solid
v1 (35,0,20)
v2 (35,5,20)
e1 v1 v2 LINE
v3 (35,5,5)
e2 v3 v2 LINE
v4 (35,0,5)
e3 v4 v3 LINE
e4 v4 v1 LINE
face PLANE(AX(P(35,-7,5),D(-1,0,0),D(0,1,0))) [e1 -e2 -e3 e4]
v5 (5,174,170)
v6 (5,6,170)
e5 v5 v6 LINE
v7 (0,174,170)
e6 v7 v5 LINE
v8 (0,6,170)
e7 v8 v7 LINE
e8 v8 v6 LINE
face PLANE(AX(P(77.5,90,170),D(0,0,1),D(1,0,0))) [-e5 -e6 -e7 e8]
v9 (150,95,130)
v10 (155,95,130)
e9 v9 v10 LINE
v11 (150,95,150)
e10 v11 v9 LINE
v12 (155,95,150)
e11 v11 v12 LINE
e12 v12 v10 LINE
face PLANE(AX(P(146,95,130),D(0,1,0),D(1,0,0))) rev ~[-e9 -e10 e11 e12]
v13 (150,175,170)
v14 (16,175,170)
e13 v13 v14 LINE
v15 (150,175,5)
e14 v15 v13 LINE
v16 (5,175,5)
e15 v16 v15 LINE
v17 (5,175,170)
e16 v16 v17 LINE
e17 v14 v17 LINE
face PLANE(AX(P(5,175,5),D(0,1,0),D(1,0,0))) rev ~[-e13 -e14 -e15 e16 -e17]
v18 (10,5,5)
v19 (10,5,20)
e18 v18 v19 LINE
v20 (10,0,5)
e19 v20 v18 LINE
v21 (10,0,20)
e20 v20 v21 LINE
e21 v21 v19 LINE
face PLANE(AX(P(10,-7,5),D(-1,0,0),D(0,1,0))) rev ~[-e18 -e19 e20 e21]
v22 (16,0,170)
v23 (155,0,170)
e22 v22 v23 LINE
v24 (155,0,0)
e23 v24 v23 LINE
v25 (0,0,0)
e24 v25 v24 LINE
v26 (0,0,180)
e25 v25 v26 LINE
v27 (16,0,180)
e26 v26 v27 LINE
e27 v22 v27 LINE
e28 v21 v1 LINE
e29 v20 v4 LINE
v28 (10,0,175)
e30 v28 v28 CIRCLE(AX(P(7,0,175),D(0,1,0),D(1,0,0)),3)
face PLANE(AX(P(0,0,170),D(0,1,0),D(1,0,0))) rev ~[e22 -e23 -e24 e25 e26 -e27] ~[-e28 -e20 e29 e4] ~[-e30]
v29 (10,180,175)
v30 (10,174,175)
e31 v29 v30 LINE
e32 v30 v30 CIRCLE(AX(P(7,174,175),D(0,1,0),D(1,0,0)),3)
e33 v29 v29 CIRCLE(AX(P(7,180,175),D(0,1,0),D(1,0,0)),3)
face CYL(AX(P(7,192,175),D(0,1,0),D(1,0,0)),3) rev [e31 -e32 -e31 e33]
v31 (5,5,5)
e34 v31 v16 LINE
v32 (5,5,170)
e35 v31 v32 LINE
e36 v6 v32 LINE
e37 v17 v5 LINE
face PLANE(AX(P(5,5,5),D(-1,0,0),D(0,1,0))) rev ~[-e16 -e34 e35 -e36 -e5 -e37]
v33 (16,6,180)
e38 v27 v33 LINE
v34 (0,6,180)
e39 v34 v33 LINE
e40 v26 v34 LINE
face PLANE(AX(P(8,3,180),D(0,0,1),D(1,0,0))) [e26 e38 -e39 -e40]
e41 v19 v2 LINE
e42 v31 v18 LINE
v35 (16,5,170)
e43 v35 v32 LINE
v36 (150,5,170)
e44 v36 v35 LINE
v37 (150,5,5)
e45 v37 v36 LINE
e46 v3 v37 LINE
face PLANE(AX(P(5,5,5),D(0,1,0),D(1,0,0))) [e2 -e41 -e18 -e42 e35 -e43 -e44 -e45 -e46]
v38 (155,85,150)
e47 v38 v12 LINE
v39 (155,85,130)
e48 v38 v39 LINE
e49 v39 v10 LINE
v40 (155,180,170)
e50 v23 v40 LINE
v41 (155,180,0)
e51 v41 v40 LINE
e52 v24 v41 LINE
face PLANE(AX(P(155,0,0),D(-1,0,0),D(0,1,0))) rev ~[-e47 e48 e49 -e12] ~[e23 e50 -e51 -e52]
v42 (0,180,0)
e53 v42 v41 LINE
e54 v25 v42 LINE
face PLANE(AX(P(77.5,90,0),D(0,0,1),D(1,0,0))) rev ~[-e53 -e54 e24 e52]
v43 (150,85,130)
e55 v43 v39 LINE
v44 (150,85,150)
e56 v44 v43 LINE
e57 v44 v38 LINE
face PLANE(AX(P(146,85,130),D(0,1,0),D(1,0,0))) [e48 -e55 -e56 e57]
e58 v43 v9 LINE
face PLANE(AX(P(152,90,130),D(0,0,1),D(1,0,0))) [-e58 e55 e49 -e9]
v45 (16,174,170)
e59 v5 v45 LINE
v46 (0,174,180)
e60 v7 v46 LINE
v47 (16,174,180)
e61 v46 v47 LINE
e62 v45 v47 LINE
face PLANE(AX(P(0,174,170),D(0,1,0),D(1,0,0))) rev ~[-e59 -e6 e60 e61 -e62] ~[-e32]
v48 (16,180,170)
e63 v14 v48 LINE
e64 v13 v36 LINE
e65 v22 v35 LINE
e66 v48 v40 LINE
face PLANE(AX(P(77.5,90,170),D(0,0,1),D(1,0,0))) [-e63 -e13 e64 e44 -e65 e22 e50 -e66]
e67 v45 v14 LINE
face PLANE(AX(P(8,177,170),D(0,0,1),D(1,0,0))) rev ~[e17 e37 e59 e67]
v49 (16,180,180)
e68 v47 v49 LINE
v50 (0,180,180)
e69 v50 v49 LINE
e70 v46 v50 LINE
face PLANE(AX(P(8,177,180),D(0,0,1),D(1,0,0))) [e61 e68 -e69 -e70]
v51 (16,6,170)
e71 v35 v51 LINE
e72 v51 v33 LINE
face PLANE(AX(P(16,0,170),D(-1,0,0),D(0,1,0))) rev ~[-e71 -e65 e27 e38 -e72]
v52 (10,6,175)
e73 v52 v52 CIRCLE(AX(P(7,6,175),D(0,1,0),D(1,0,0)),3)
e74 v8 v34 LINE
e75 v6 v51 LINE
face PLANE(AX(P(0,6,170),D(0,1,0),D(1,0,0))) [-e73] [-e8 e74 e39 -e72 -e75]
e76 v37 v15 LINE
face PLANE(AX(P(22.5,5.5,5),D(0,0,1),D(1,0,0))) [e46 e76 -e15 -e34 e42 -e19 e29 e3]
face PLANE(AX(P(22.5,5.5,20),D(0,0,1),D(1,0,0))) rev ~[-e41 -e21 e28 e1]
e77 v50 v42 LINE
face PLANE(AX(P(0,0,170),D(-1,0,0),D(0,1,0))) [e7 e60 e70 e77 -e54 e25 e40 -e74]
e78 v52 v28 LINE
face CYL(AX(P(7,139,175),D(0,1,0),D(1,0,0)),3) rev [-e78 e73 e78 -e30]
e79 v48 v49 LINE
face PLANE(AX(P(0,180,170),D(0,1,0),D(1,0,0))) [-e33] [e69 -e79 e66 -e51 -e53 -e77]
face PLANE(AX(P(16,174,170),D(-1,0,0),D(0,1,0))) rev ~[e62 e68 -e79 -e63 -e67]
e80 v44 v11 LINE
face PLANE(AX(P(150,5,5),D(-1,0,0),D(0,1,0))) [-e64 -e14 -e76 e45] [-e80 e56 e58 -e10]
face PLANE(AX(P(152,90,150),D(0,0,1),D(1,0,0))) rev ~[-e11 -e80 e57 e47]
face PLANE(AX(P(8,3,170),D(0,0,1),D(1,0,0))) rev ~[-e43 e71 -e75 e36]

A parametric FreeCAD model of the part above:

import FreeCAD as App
import Part
import Sketcher
from FreeCAD import Vector
Q = App.Units.Quantity

doc = App.newDocument("Part")
body = doc.addObject("PartDesign::Body", "Body")

# Sketch on XZ plane
sketch1 = body.newObject("Sketcher::SketchObject", "Sketch")
sketch1.AttachmentSupport = (doc.getObject("XZ_Plane"), [""])
sketch1.MapMode = "FlatFace"
sketch1.AttachmentOffset = App.Placement(Vector(0, 0, -139), App.Rotation())
sketch1.addGeometry(Part.Circle(Vector(7, 175, 0), Vector(0, 0, 1), 3), False)
sketch1.addConstraint([
    Sketcher.Constraint("Diameter", 0, Q("6 mm")),
    Sketcher.Constraint("DistanceX", -1, 1, 0, 3, Q("7 mm")),
    Sketcher.Constraint("DistanceY", -1, 1, 0, 3, Q("175 mm")),
])
pad1 = body.newObject("PartDesign::Pad", "Pad")
pad1.Profile = sketch1
pad1.Length = 148
body2 = doc.addObject("PartDesign::Body", "Body001")

# Sketch on XY plane
sketch2 = body2.newObject("Sketcher::SketchObject", "Sketch001")
sketch2.AttachmentSupport = (doc.getObject("XY_Plane001"), [""])
sketch2.MapMode = "FlatFace"
sketch2.AttachmentOffset = App.Placement(Vector(0, 0, 170), App.Rotation())
sketch2.addGeometry([
    Part.LineSegment(Vector(0, 6, 0), Vector(0, 0, 0)),
    Part.LineSegment(Vector(0, 0, 0), Vector(16, 0, 0)),
    Part.LineSegment(Vector(16, 0, 0), Vector(16, 6, 0)),
    Part.LineSegment(Vector(16, 6, 0), Vector(0, 6, 0)),
], False)
sketch2.addConstraint([
    Sketcher.Constraint("Coincident", 0, 2, 1, 1),
    Sketcher.Constraint("Coincident", 1, 2, 2, 1),
    Sketcher.Constraint("Coincident", 2, 2, 3, 1),
    Sketcher.Constraint("Coincident", 3, 2, 0, 1),
    Sketcher.Constraint("Vertical", 0),
    Sketcher.Constraint("Horizontal", 1),
    Sketcher.Constraint("Vertical", 2),
    Sketcher.Constraint("Horizontal", 3),
    Sketcher.Constraint("Coincident", 0, 2, -1, 1),
    Sketcher.Constraint("DistanceX", 1, 1, 1, 2, Q("16 mm")),
    Sketcher.Constraint("DistanceY", 0, 2, 0, 1, Q("6 mm")),
])
pad2 = body2.newObject("PartDesign::Pad", "Pad001")
pad2.Profile = sketch2
pad2.Length = 10
doc.recompute()

boolean = body2.newObject("PartDesign::Boolean", "Boolean")
boolean.Type = "Cut"
boolean.addObjects([body])
body3 = doc.addObject("PartDesign::Body", "Body002")

# Sketch on XZ plane
sketch3 = body3.newObject("Sketcher::SketchObject", "Sketch002")
sketch3.AttachmentSupport = (doc.getObject("XZ_Plane002"), [""])
sketch3.MapMode = "FlatFace"
sketch3.AttachmentOffset = App.Placement(Vector(0, 0, -192), App.Rotation())
sketch3.addGeometry(Part.Circle(Vector(7, 175, 0), Vector(0, 0, 1), 3), False)
sketch3.addConstraint([
    Sketcher.Constraint("Diameter", 0, Q("6 mm")),
    Sketcher.Constraint("DistanceX", -1, 1, 0, 3, Q("7 mm")),
    Sketcher.Constraint("DistanceY", -1, 1, 0, 3, Q("175 mm")),
])
pad3 = body3.newObject("PartDesign::Pad", "Pad002")
pad3.Profile = sketch3
pad3.Length = 148
body4 = doc.addObject("PartDesign::Body", "Body003")

# Sketch on XY plane
sketch4 = body4.newObject("Sketcher::SketchObject", "Sketch003")
sketch4.AttachmentSupport = (doc.getObject("XY_Plane003"), [""])
sketch4.MapMode = "FlatFace"
sketch4.AttachmentOffset = App.Placement(Vector(0, 0, 170), App.Rotation())
sketch4.addGeometry([
    Part.LineSegment(Vector(0, 180, 0), Vector(0, 174, 0)),
    Part.LineSegment(Vector(0, 174, 0), Vector(16, 174, 0)),
    Part.LineSegment(Vector(16, 174, 0), Vector(16, 180, 0)),
    Part.LineSegment(Vector(16, 180, 0), Vector(0, 180, 0)),
], False)
sketch4.addConstraint([
    Sketcher.Constraint("Coincident", 0, 2, 1, 1),
    Sketcher.Constraint("Coincident", 1, 2, 2, 1),
    Sketcher.Constraint("Coincident", 2, 2, 3, 1),
    Sketcher.Constraint("Coincident", 3, 2, 0, 1),
    Sketcher.Constraint("Vertical", 0),
    Sketcher.Constraint("Horizontal", 1),
    Sketcher.Constraint("Vertical", 2),
    Sketcher.Constraint("Horizontal", 3),
    Sketcher.Constraint("PointOnObject", 0, 2, -2),
    Sketcher.Constraint("DistanceX", 1, 1, 1, 2, Q("16 mm")),
    Sketcher.Constraint("DistanceY", 0, 2, 0, 1, Q("6 mm")),
    Sketcher.Constraint("DistanceY", -1, 1, 0, 2, Q("174 mm")),
])
pad4 = body4.newObject("PartDesign::Pad", "Pad003")
pad4.Profile = sketch4
pad4.Length = 10
doc.recompute()

boolean2 = body4.newObject("PartDesign::Boolean", "Boolean001")
boolean2.Type = "Cut"
boolean2.addObjects([body3])
body5 = doc.addObject("PartDesign::Body", "Body004")

# Sketch on XY plane
sketch5 = body5.newObject("Sketcher::SketchObject", "Sketch004")
sketch5.AttachmentSupport = (doc.getObject("XY_Plane004"), [""])
sketch5.MapMode = "FlatFace"
sketch5.AttachmentOffset = App.Placement(Vector(0, 0, 130), App.Rotation())
sketch5.addGeometry([
    Part.LineSegment(Vector(146, 95, 0), Vector(146, 85, 0)),
    Part.LineSegment(Vector(146, 85, 0), Vector(158, 85, 0)),
    Part.LineSegment(Vector(158, 85, 0), Vector(158, 95, 0)),
    Part.LineSegment(Vector(158, 95, 0), Vector(146, 95, 0)),
], False)
sketch5.addConstraint([
    Sketcher.Constraint("Coincident", 0, 2, 1, 1),
    Sketcher.Constraint("Coincident", 1, 2, 2, 1),
    Sketcher.Constraint("Coincident", 2, 2, 3, 1),
    Sketcher.Constraint("Coincident", 3, 2, 0, 1),
    Sketcher.Constraint("Vertical", 0),
    Sketcher.Constraint("Horizontal", 1),
    Sketcher.Constraint("Vertical", 2),
    Sketcher.Constraint("Horizontal", 3),
    Sketcher.Constraint("DistanceX", 1, 1, 1, 2, Q("12 mm")),
    Sketcher.Constraint("DistanceY", 0, 2, 0, 1, Q("10 mm")),
    Sketcher.Constraint("DistanceX", -1, 1, 0, 2, Q("146 mm")),
    Sketcher.Constraint("DistanceY", -1, 1, 0, 2, Q("85 mm")),
])
pad5 = body5.newObject("PartDesign::Pad", "Pad004")
pad5.Profile = sketch5
pad5.Length = 20
body6 = doc.addObject("PartDesign::Body", "Body005")

# Sketch on XY plane
sketch6 = body6.newObject("Sketcher::SketchObject", "Sketch005")
sketch6.AttachmentSupport = (doc.getObject("XY_Plane005"), [""])
sketch6.MapMode = "FlatFace"
sketch6.AttachmentOffset = App.Placement(Vector(0, 0, 5), App.Rotation())
sketch6.addGeometry([
    Part.LineSegment(Vector(10, 18, 0), Vector(10, -7, 0)),
    Part.LineSegment(Vector(10, -7, 0), Vector(35, -7, 0)),
    Part.LineSegment(Vector(35, -7, 0), Vector(35, 18, 0)),
    Part.LineSegment(Vector(35, 18, 0), Vector(10, 18, 0)),
], False)
sketch6.addConstraint([
    Sketcher.Constraint("Coincident", 0, 2, 1, 1),
    Sketcher.Constraint("Coincident", 1, 2, 2, 1),
    Sketcher.Constraint("Coincident", 2, 2, 3, 1),
    Sketcher.Constraint("Coincident", 3, 2, 0, 1),
    Sketcher.Constraint("Vertical", 0),
    Sketcher.Constraint("Horizontal", 1),
    Sketcher.Constraint("Vertical", 2),
    Sketcher.Constraint("Horizontal", 3),
    Sketcher.Constraint("Equal", 3, 0),
    Sketcher.Constraint("DistanceX", 1, 1, 1, 2, Q("25 mm")),
    Sketcher.Constraint("DistanceX", -1, 1, 0, 2, Q("10 mm")),
    Sketcher.Constraint("DistanceY", 0, 2, -1, 1, Q("7 mm")),
])
pad6 = body6.newObject("PartDesign::Pad", "Pad005")
pad6.Profile = sketch6
pad6.Length = 15
body7 = doc.addObject("PartDesign::Body", "Body006")

# Sketch on XY plane
sketch7 = body7.newObject("Sketcher::SketchObject", "Sketch006")
sketch7.AttachmentSupport = (doc.getObject("XY_Plane006"), [""])
sketch7.MapMode = "FlatFace"
sketch7.AttachmentOffset = App.Placement(Vector(0, 0, 5), App.Rotation())
sketch7.addGeometry([
    Part.LineSegment(Vector(5, 175, 0), Vector(5, 5, 0)),
    Part.LineSegment(Vector(5, 5, 0), Vector(150, 5, 0)),
    Part.LineSegment(Vector(150, 5, 0), Vector(150, 175, 0)),
    Part.LineSegment(Vector(150, 175, 0), Vector(5, 175, 0)),
], False)
sketch7.addConstraint([
    Sketcher.Constraint("Coincident", 0, 2, 1, 1),
    Sketcher.Constraint("Coincident", 1, 2, 2, 1),
    Sketcher.Constraint("Coincident", 2, 2, 3, 1),
    Sketcher.Constraint("Coincident", 3, 2, 0, 1),
    Sketcher.Constraint("Vertical", 0),
    Sketcher.Constraint("Horizontal", 1),
    Sketcher.Constraint("Vertical", 2),
    Sketcher.Constraint("Horizontal", 3),
    Sketcher.Constraint("DistanceX", 1, 1, 1, 2, Q("145 mm")),
    Sketcher.Constraint("DistanceY", 0, 2, 0, 1, Q("170 mm")),
    Sketcher.Constraint("DistanceX", -1, 1, 0, 2, Q("5 mm")),
    Sketcher.Constraint("DistanceY", -1, 1, 0, 2, Q("5 mm")),
])
pad7 = body7.newObject("PartDesign::Pad", "Pad006")
pad7.Profile = sketch7
pad7.Length = 200
body8 = doc.addObject("PartDesign::Body", "Body007")

# Sketch on XY plane
sketch8 = body8.newObject("Sketcher::SketchObject", "Sketch007")
sketch8.AttachmentSupport = (doc.getObject("XY_Plane007"), [""])
sketch8.MapMode = "FlatFace"
sketch8.addGeometry([
    Part.LineSegment(Vector(0, 180, 0), Vector(0, 0, 0)),
    Part.LineSegment(Vector(0, 0, 0), Vector(155, 0, 0)),
    Part.LineSegment(Vector(155, 0, 0), Vector(155, 180, 0)),
    Part.LineSegment(Vector(155, 180, 0), Vector(0, 180, 0)),
], False)
sketch8.addConstraint([
    Sketcher.Constraint("Coincident", 0, 2, 1, 1),
    Sketcher.Constraint("Coincident", 1, 2, 2, 1),
    Sketcher.Constraint("Coincident", 2, 2, 3, 1),
    Sketcher.Constraint("Coincident", 3, 2, 0, 1),
    Sketcher.Constraint("Vertical", 0),
    Sketcher.Constraint("Horizontal", 1),
    Sketcher.Constraint("Vertical", 2),
    Sketcher.Constraint("Horizontal", 3),
    Sketcher.Constraint("Coincident", 0, 2, -1, 1),
    Sketcher.Constraint("DistanceX", 1, 1, 1, 2, Q("155 mm")),
    Sketcher.Constraint("DistanceY", 0, 2, 0, 1, Q("180 mm")),
])
pad8 = body8.newObject("PartDesign::Pad", "Pad007")
pad8.Profile = sketch8
pad8.Length = 170
doc.recompute()

boolean3 = body8.newObject("PartDesign::Boolean", "Boolean002")
boolean3.Type = "Cut"
boolean3.addObjects([body7])
doc.recompute()

boolean4 = body8.newObject("PartDesign::Boolean", "Boolean003")
boolean4.Type = "Cut"
boolean4.addObjects([body6])
doc.recompute()

boolean5 = body8.newObject("PartDesign::Boolean", "Boolean004")
boolean5.Type = "Cut"
boolean5.addObjects([body5])
doc.recompute()

boolean6 = body8.newObject("PartDesign::Boolean", "Boolean005")
boolean6.Type = "Fuse"
boolean6.addObjects([body4])
doc.recompute()

boolean7 = body8.newObject("PartDesign::Boolean", "Boolean006")
boolean7.Type = "Fuse"
boolean7.addObjects([body2])

doc.recompute()
